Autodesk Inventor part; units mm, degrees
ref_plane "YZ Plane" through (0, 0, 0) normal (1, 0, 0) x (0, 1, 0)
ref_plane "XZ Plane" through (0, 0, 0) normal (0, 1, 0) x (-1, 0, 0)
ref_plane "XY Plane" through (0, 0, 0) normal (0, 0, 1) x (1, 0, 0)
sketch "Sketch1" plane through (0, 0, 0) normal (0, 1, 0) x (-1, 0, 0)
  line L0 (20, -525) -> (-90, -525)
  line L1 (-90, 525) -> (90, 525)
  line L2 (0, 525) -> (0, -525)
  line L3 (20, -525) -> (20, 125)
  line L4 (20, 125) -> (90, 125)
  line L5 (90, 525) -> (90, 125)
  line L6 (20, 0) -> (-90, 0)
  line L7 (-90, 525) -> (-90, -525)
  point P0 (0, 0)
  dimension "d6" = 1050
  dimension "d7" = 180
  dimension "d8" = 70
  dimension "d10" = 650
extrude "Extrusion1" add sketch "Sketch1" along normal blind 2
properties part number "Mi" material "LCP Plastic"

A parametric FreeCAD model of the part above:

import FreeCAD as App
import Part
import Sketcher

V = App.Vector


def add_polygon(sketch, points):
    """Adds a closed chain of lines whose ends are joined by coincident constraints."""
    first, n = sketch.GeometryCount, len(points)
    for a, b in zip(points, points[1:] + points[:1]):
        sketch.addGeometry(Part.LineSegment(App.Vector(*a, 0), App.Vector(*b, 0)), False)
    for i in range(n):
        sketch.addConstraint(Sketcher.Constraint("Coincident", first + i, 2, first + (i + 1) % n, 1))

doc = App.newDocument("Part")
params = doc.addObject("Spreadsheet::Sheet", "Params")
for row, (alias, value) in enumerate([
    ("sketch1_width", "70 mm"),
    ("sketch1_width2", "180 mm"),
    ("sketch1_height", "650 mm"),
    ("sketch1_height2", "1050 mm"),
    ("pad1_length", "2 mm"),
], start=1):
    params.set(f"A{row}", alias)
    params.set(f"B{row}", "=" + value)
    params.setAlias(f"B{row}", alias)

body = doc.addObject("PartDesign::Body", "Body")

# Sketch on XZ plane
sketch1 = doc.addObject("Sketcher::SketchObject", "Sketch")
body.addObject(sketch1)
sketch1.AttachmentSupport = (doc.XZ_Plane, [""])
sketch1.MapMode = "FlatFace"
add_polygon(sketch1, [(-20, -525), (-20, 125), (-90, 125), (-90, 525), (90, 525), (90, -525)])  # lines 0-5
sketch1.addConstraint([
    Sketcher.Constraint("Vertical", 0),
    Sketcher.Constraint("Horizontal", 1),
    Sketcher.Constraint("Vertical", 2),
    Sketcher.Constraint("Horizontal", 3),
    Sketcher.Constraint("Vertical", 4),
    Sketcher.Constraint("Horizontal", 5),
    Sketcher.Constraint("Symmetric", 2, 2, 4, 2, -1, 1),
    Sketcher.Constraint("DistanceX", 1, 2, 1, 1, 70.0),
    Sketcher.Constraint("DistanceX", 3, 1, 3, 2, 180.0),
    Sketcher.Constraint("DistanceY", 0, 1, 0, 2, 650.0),
    Sketcher.Constraint("DistanceY", 4, 2, 4, 1, 1050.0),
])
sketch1.setExpression("Constraints[13]", "Params.sketch1_width")
sketch1.setExpression("Constraints[14]", "Params.sketch1_width2")
sketch1.setExpression("Constraints[15]", "Params.sketch1_height")
sketch1.setExpression("Constraints[16]", "Params.sketch1_height2")
pad1 = doc.addObject("PartDesign::Pad", "Pad")
body.addObject(pad1)
pad1.Profile = sketch1
pad1.setExpression("Length", "Params.pad1_length")
pad1.Reversed = True

doc.recompute()
